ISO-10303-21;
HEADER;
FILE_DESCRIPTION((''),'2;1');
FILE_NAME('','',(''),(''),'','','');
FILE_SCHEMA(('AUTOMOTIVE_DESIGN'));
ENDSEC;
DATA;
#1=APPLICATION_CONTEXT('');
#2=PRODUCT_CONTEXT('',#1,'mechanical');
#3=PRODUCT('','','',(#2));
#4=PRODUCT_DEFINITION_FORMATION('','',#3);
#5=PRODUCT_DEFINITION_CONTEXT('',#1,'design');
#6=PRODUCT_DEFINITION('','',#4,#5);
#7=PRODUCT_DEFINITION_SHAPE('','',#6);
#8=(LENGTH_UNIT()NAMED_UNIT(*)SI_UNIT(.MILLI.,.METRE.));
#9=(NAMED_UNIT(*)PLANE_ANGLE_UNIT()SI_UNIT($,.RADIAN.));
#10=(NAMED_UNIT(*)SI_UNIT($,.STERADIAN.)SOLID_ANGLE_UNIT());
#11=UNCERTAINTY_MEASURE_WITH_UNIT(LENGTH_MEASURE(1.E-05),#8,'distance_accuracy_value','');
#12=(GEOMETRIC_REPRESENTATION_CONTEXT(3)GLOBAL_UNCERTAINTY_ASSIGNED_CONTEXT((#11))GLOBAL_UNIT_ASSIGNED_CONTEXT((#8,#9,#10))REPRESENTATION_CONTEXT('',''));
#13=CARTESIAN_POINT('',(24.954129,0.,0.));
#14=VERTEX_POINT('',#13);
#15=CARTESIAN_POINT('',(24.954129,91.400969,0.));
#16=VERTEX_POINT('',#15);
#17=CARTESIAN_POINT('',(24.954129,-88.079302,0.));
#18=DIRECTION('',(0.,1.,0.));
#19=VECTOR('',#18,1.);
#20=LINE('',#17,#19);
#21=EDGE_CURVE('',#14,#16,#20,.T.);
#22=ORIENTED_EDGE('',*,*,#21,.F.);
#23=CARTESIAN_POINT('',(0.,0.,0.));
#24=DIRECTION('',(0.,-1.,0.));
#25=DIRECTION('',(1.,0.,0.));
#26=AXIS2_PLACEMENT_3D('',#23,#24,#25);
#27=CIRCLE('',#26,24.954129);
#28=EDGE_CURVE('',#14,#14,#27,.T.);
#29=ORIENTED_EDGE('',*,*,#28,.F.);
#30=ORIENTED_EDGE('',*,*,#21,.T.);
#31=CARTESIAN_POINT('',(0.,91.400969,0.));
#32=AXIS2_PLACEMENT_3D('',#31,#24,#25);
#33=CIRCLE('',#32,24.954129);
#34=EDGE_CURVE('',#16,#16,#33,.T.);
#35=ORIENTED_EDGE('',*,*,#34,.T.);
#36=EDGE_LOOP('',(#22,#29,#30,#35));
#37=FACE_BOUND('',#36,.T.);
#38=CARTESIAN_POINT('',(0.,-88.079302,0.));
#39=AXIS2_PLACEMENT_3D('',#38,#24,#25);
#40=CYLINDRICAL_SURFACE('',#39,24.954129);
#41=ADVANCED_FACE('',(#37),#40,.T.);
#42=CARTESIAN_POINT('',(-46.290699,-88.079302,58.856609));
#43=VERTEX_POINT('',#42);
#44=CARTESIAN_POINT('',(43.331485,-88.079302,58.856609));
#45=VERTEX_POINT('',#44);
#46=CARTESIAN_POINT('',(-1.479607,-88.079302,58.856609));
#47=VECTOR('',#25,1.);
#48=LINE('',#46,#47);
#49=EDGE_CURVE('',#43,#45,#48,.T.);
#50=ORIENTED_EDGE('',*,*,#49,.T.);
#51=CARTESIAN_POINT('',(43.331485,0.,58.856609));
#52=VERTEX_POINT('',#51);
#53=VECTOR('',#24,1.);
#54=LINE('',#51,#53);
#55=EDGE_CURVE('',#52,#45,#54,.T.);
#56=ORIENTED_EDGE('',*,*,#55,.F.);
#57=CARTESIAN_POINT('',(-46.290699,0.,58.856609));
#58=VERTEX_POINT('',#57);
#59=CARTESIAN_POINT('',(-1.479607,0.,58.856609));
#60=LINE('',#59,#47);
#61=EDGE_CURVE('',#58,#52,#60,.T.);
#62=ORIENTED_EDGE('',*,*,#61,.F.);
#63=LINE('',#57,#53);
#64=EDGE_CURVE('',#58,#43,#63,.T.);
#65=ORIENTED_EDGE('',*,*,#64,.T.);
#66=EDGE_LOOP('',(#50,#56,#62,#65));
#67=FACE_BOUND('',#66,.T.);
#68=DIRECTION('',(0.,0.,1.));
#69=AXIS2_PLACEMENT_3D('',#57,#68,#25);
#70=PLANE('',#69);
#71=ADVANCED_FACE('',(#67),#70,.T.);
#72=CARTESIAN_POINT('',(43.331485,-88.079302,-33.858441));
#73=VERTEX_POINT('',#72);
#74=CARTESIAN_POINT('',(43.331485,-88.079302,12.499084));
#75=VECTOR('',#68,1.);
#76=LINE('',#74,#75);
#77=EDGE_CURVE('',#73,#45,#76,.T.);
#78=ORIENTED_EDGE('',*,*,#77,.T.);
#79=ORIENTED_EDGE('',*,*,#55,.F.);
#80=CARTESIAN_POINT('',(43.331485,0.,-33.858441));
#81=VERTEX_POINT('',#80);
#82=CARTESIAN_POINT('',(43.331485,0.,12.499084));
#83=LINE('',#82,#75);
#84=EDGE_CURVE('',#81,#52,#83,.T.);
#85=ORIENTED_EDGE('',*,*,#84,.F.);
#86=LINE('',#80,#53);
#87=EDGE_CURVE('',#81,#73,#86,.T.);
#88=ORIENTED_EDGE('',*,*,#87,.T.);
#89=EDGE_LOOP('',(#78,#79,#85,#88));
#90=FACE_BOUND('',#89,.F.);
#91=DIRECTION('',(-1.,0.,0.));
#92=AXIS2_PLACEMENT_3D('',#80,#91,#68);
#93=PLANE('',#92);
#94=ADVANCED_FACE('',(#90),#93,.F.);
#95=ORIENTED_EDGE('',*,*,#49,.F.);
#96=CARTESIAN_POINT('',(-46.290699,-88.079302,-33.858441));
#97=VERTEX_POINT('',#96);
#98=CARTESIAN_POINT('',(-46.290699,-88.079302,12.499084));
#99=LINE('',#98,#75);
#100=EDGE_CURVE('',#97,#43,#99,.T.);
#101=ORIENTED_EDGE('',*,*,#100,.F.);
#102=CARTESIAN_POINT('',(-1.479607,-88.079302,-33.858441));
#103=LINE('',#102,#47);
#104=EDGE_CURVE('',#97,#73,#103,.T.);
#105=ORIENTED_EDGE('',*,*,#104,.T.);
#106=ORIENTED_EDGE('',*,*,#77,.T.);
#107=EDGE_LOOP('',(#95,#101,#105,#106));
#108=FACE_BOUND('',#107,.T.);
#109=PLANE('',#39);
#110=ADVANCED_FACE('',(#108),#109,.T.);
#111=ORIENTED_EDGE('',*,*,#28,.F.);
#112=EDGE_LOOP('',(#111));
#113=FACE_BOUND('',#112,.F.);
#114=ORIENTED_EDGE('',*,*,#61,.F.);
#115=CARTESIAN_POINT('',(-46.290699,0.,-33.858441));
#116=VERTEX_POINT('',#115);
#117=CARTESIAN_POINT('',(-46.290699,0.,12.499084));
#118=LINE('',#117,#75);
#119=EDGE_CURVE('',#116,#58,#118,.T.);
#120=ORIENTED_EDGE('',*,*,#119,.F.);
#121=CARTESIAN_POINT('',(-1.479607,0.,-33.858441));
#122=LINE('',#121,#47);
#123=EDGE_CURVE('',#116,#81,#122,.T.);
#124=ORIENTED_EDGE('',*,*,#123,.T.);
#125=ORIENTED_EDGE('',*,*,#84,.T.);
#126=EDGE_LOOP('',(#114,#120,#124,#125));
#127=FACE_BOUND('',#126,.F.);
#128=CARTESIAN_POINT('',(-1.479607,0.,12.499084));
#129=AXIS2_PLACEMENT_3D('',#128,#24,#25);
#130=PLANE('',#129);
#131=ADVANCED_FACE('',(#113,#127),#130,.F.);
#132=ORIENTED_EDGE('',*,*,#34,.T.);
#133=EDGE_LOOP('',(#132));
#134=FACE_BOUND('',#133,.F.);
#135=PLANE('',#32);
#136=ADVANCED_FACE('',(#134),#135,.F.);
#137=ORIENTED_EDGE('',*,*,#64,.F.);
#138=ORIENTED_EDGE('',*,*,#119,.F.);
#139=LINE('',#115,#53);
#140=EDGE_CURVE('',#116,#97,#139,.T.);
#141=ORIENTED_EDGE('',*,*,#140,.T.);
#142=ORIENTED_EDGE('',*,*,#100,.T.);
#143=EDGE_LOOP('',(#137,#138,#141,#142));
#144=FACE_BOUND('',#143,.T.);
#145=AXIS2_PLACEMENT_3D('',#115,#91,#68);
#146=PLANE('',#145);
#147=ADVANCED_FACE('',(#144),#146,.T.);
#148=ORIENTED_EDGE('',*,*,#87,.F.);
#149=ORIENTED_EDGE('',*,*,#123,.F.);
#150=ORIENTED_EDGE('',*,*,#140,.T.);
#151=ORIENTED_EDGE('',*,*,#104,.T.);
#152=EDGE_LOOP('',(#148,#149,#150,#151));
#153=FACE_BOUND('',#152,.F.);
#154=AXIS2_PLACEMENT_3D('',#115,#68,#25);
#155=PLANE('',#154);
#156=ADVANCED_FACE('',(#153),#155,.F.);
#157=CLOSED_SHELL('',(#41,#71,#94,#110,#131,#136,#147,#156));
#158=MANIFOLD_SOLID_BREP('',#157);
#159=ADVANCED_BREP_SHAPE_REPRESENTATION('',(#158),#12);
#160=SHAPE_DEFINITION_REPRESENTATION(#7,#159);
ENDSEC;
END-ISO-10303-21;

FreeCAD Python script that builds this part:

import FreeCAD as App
import Part
import Sketcher

V = App.Vector

doc = App.newDocument("Part")
body = doc.addObject("PartDesign::Body", "Body")

sketch1 = body.newObject("Sketcher::SketchObject", "Sketch")
sketch1.AttachmentSupport = (doc.getObject("XZ_Plane"), [""])
sketch1.MapMode = "FlatFace"
sketch1.addGeometry([
    Part.LineSegment(V(-46.290699, 58.856609, 0), V(-46.290699, -33.858441, 0)),
    Part.LineSegment(V(-46.290699, -33.858441, 0), V(43.331485, -33.858441, 0)),
    Part.LineSegment(V(43.331485, -33.858441, 0), V(43.331485, 58.856609, 0)),
    Part.LineSegment(V(43.331485, 58.856609, 0), V(-46.290699, 58.856609, 0)),
], False)
sketch1.addConstraint([
    Sketcher.Constraint("Coincident", 0, 2, 1, 1),
    Sketcher.Constraint("Coincident", 1, 2, 2, 1),
    Sketcher.Constraint("Coincident", 2, 2, 3, 1),
    Sketcher.Constraint("Coincident", 3, 2, 0, 1),
    Sketcher.Constraint("Vertical", 0),
    Sketcher.Constraint("Horizontal", 1),
    Sketcher.Constraint("Vertical", 2),
    Sketcher.Constraint("Horizontal", 3),
    Sketcher.Constraint("DistanceY", 0, 2, 0, 1, 92.715051),
    Sketcher.Constraint("DistanceX", 0, 2, -1, 1, 46.290699),
    Sketcher.Constraint("DistanceX", 1, 1, 1, 2, 89.622184),
    Sketcher.Constraint("DistanceY", 0, 2, -1, 1, 33.858441),
])
pad1 = body.newObject("PartDesign::Pad", "Pad")
pad1.Profile = sketch1
pad1.Length = 88.079302

sketch2 = body.newObject("Sketcher::SketchObject", "Sketch001")
sketch2.AttachmentSupport = (doc.getObject("XZ_Plane"), [""])
sketch2.MapMode = "FlatFace"
sketch2.AttachmentOffset = App.Placement(V(0, 0, 88.079302), App.Rotation())
sketch2.addGeometry(Part.Circle(V(0, 0, 0), V(0, 0, 1), 24.954129), False)
sketch2.addConstraint([
    Sketcher.Constraint("Coincident", 0, 3, -1, 1),
    Sketcher.Constraint("Diameter", 0, 49.908258),
])
pad2 = body.newObject("PartDesign::Pad", "Pad001")
pad2.Profile = sketch2
pad2.Length = 179.480271
pad2.Reversed = True

doc.recompute()
